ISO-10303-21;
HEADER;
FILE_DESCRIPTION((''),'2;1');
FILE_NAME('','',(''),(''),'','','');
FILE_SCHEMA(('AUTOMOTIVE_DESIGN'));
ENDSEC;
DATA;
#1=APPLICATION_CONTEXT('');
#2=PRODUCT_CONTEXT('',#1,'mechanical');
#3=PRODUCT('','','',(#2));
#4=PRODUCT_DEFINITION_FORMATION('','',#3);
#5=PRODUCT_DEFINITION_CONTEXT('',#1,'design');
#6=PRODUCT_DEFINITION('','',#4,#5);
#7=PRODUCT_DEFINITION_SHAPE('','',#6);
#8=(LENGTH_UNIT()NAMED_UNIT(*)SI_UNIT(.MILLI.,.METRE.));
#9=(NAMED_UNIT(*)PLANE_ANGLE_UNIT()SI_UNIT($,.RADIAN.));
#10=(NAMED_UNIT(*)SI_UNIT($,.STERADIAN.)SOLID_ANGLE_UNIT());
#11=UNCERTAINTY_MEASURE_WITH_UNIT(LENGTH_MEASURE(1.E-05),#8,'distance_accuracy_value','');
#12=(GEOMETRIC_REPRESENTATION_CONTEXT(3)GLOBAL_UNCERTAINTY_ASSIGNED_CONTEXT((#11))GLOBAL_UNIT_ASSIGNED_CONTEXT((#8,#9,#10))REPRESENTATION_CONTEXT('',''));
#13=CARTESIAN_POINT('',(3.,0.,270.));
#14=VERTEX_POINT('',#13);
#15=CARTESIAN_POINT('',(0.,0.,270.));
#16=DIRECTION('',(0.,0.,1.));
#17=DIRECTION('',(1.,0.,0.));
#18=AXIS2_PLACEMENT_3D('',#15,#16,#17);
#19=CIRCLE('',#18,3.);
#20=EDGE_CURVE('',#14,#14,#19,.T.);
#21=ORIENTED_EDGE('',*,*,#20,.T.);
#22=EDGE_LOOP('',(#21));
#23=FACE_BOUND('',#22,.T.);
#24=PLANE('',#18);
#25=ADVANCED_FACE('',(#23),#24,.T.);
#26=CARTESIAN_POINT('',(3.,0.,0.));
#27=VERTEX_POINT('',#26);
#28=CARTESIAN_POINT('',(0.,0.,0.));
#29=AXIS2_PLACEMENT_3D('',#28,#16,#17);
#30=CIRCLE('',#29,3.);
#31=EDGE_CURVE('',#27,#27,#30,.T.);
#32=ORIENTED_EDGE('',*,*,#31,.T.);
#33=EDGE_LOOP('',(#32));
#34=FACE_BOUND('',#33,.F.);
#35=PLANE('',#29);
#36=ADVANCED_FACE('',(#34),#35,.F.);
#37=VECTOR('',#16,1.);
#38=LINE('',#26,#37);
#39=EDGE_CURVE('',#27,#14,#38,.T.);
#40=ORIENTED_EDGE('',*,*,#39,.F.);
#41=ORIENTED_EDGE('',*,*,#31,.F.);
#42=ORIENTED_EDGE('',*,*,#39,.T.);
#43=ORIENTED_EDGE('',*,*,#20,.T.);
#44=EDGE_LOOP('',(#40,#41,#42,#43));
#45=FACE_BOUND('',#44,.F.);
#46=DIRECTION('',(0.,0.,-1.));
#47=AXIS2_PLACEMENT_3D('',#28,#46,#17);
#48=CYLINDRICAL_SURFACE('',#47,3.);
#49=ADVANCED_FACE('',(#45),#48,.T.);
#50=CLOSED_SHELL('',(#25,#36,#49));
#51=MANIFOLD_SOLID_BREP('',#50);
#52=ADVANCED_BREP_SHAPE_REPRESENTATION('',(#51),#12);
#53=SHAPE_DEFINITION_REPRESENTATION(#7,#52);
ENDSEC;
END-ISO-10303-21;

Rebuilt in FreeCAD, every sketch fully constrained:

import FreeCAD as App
import Part
import Sketcher
from FreeCAD import Vector
Q = App.Units.Quantity

doc = App.newDocument("Part")
body = doc.addObject("PartDesign::Body", "Body")

sketch1 = body.newObject("Sketcher::SketchObject", "Sketch")
sketch1.AttachmentSupport = (doc.getObject("XY_Plane"), [""])
sketch1.MapMode = "FlatFace"
sketch1.addGeometry(Part.Circle(Vector(0, 0, 0), Vector(0, 0, 1), 3), False)
sketch1.addConstraint([
    Sketcher.Constraint("Coincident", 0, 3, -1, 1),
    Sketcher.Constraint("Diameter", 0, Q("6 mm")),
])
pad1 = body.newObject("PartDesign::Pad", "Pad")
pad1.Profile = sketch1
pad1.Length = 270

doc.recompute()
